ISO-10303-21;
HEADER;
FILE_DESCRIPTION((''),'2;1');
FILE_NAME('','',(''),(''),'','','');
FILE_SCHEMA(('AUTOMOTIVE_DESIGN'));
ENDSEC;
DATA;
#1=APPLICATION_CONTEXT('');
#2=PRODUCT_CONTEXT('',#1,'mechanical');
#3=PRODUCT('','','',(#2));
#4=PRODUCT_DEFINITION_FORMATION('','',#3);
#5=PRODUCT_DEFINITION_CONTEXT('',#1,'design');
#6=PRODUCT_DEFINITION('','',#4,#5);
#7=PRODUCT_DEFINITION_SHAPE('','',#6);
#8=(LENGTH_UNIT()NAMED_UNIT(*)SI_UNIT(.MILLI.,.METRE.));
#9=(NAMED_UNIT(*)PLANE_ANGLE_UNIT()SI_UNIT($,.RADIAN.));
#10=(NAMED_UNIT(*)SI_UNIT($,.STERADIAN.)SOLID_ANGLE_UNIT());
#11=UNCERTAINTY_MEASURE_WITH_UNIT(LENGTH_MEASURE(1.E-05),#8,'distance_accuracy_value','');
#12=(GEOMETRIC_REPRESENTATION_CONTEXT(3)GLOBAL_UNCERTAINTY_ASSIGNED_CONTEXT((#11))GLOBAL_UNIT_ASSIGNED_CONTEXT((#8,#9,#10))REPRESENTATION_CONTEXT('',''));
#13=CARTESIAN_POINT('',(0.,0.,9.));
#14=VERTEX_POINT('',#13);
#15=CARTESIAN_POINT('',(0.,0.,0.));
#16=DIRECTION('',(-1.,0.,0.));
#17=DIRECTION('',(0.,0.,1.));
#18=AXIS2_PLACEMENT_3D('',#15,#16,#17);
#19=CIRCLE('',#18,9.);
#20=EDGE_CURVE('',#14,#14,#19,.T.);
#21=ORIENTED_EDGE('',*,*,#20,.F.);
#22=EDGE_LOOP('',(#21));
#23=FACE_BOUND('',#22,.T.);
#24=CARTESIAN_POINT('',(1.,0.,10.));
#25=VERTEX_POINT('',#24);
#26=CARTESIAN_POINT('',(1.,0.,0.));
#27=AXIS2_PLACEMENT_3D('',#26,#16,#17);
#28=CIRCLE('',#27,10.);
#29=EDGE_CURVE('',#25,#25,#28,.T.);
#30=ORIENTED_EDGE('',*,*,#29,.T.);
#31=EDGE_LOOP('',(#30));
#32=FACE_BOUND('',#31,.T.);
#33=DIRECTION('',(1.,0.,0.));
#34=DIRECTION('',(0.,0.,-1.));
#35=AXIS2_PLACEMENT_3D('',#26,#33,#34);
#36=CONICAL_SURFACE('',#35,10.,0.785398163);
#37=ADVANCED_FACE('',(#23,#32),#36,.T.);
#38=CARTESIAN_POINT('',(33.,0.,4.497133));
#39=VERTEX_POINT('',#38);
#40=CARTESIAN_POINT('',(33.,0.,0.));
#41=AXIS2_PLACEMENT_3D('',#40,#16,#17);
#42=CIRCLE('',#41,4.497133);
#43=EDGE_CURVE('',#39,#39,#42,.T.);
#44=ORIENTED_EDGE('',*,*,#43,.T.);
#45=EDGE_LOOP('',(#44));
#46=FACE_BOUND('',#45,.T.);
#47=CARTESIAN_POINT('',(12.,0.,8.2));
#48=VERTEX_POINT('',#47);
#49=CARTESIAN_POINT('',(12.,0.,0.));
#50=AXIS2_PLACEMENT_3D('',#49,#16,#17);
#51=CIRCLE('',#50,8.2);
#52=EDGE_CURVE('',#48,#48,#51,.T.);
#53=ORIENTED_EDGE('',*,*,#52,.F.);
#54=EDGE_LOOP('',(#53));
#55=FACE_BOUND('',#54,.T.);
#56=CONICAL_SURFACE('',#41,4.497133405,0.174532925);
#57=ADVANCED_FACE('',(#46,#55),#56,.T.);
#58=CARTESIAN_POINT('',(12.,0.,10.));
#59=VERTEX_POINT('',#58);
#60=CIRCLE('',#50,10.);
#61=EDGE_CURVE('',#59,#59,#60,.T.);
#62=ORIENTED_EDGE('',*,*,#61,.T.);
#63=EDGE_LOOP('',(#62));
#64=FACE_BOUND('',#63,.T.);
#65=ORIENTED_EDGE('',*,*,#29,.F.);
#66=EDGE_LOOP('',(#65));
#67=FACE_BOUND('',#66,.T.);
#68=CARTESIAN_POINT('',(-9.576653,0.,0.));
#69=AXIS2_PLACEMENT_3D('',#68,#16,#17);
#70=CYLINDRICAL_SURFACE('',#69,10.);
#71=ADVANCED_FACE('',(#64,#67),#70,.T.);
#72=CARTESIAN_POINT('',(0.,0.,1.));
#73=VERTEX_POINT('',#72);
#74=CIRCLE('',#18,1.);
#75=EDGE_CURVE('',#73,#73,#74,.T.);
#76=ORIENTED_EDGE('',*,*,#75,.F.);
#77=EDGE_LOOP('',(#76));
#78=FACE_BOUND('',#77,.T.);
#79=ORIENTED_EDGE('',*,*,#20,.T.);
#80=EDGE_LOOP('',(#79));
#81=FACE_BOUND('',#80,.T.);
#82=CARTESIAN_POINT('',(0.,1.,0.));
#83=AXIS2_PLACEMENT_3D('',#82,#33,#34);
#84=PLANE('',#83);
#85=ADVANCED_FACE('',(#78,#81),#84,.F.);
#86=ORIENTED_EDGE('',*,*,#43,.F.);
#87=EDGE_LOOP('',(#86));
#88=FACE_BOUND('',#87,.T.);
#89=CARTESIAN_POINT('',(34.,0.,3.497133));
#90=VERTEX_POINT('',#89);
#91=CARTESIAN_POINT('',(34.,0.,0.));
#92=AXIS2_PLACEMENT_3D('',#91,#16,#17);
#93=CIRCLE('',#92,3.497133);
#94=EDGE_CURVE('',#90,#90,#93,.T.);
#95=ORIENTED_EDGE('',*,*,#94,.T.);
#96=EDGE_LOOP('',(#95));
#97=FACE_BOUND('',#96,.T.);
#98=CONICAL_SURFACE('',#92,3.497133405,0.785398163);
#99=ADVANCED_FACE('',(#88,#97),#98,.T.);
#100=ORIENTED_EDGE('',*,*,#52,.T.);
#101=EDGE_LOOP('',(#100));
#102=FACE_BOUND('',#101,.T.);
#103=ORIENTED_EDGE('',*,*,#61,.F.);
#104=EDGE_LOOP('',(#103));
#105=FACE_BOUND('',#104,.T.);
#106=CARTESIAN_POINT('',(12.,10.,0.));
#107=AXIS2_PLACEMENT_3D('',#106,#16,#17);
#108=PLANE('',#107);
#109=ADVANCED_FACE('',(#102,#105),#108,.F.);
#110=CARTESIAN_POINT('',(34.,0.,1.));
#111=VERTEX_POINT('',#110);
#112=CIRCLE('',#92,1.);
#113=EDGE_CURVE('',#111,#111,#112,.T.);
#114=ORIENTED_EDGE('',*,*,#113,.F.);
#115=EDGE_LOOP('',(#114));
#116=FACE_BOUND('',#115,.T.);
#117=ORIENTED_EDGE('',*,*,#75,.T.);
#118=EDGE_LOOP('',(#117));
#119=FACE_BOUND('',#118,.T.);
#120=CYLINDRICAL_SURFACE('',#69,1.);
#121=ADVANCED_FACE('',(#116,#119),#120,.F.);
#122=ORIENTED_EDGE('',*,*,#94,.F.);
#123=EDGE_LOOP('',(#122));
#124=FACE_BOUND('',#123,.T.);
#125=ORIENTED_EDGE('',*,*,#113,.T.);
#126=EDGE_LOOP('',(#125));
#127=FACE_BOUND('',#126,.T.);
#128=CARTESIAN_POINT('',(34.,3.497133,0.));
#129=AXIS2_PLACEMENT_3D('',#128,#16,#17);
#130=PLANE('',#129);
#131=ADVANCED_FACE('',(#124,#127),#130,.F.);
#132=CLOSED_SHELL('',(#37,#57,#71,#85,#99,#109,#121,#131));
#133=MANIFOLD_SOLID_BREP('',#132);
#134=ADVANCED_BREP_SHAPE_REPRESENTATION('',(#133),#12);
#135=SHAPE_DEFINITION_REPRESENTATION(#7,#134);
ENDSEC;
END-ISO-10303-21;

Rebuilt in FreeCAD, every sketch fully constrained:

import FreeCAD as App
import Part
import Sketcher
from FreeCAD import Vector
Q = App.Units.Quantity

doc = App.newDocument("Part")
body = doc.addObject("PartDesign::Body", "Body")

# Sketch on XY plane
sketch1 = doc.addObject("Sketcher::SketchObject", "Sketch")
body.addObject(sketch1)
sketch1.AttachmentSupport = (doc.XY_Plane, [""])
sketch1.MapMode = "FlatFace"
sketch1.addGeometry(Part.LineSegment(Vector(1, 10, 0), Vector(0, 9, 0)), False)
sketch1.addGeometry(Part.LineSegment(Vector(0, 9, 0), Vector(0, 1, 0)), False)
sketch1.addGeometry(Part.LineSegment(Vector(0, 1, 0), Vector(34, 1, 0)), False)
sketch1.addGeometry(Part.LineSegment(Vector(34, 1, 0), Vector(34, 3.5, 0)), False)
sketch1.addGeometry(Part.LineSegment(Vector(34, 3.5, 0), Vector(33, 4.5, 0)), False)
sketch1.addGeometry(Part.LineSegment(Vector(33, 4.5, 0), Vector(12, 8.2, 0)), False)
sketch1.addGeometry(Part.LineSegment(Vector(12, 8.2, 0), Vector(12, 10, 0)), False)
sketch1.addGeometry(Part.LineSegment(Vector(12, 10, 0), Vector(1, 10, 0)), False)
sketch1.addConstraint(Sketcher.Constraint("Coincident", 0, 2, 1, 1))
sketch1.addConstraint(Sketcher.Constraint("Coincident", 1, 2, 2, 1))
sketch1.addConstraint(Sketcher.Constraint("Coincident", 2, 2, 3, 1))
sketch1.addConstraint(Sketcher.Constraint("Coincident", 3, 2, 4, 1))
sketch1.addConstraint(Sketcher.Constraint("Coincident", 4, 2, 5, 1))
sketch1.addConstraint(Sketcher.Constraint("Coincident", 5, 2, 6, 1))
sketch1.addConstraint(Sketcher.Constraint("Coincident", 6, 2, 7, 1))
sketch1.addConstraint(Sketcher.Constraint("Coincident", 7, 2, 0, 1))
sketch1.addConstraint(Sketcher.Constraint("Vertical", 1))
sketch1.addConstraint(Sketcher.Constraint("Horizontal", 2))
sketch1.addConstraint(Sketcher.Constraint("Vertical", 3))
sketch1.addConstraint(Sketcher.Constraint("Vertical", 6))
sketch1.addConstraint(Sketcher.Constraint("Horizontal", 7))
sketch1.addConstraint(Sketcher.Constraint("PointOnObject", 0, 2, -2))
sketch1.addConstraint(Sketcher.Constraint("Perpendicular", 0, 4))
sketch1.addConstraint(Sketcher.Constraint("Equal", 0, 4))
sketch1.addConstraint(Sketcher.Constraint("DistanceX", 2, 1, 2, 2, 34.0))
sketch1.addConstraint(Sketcher.Constraint("DistanceX", 7, 2, 7, 1, 11.0))
sketch1.addConstraint(Sketcher.Constraint("DistanceY", 1, 2, 1, 1, 8.0))
sketch1.addConstraint(Sketcher.Constraint("Angle", 0, Q("-135 deg")))
sketch1.addConstraint(Sketcher.Constraint("Angle", 5, Q("170 deg")))
sketch1.addConstraint(Sketcher.Constraint("DistanceY", 6, 1, 6, 2, 1.8))
sketch1.addConstraint(Sketcher.Constraint("DistanceY", -1, 1, 0, 2, 9.0))
sketch1.addConstraint(Sketcher.Constraint("DistanceX", -1, 1, 4, 2, 33.0))
revolution = doc.addObject("PartDesign::Revolution", "Revolution")
body.addObject(revolution)
revolution.Profile = sketch1
revolution.ReferenceAxis = (sketch1, ["H_Axis"])
revolution.Angle = 360

doc.recompute()
